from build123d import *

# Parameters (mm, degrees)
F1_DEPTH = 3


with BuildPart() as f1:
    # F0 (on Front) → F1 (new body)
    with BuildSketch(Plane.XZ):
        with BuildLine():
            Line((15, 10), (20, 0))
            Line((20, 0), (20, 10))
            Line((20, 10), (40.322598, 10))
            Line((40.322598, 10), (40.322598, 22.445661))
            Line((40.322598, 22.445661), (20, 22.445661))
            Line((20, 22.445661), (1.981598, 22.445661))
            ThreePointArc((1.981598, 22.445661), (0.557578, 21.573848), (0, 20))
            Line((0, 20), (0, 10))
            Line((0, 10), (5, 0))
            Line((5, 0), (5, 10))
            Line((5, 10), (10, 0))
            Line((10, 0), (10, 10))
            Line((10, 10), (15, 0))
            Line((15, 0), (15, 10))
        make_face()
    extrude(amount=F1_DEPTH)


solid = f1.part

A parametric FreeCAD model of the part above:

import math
import FreeCAD as App
import Part
import Sketcher

V = App.Vector
Q = App.Units.Quantity

doc = App.newDocument("Part")
body = doc.addObject("PartDesign::Body", "Body")

sketch1 = body.newObject("Sketcher::SketchObject", "Sketch")
sketch1.AttachmentSupport = (doc.getObject("XZ_Plane"), [""])
sketch1.MapMode = "FlatFace"
sketch1.addGeometry([
    Part.LineSegment(V(15, 10, 0), V(20, 0, 0)),
    Part.LineSegment(V(20, 0, 0), V(20, 10, 0)),
    Part.LineSegment(V(20, 10, 0), V(40.322598, 10, 0)),
    Part.LineSegment(V(40.322598, 10, 0), V(40.322598, 22.445661, 0)),
    Part.LineSegment(V(40.322598, 22.445661, 0), V(1.981598, 22.445661, 0)),
    Part.ArcOfCircle(Part.Circle(V(2.499999, 20.000001, 0), V(0, 0, 1), 2.499999), math.radians(101.96771), math.radians(180.000016)),
    Part.LineSegment(V(0, 20, 0), V(0, 10, 0)),
    Part.LineSegment(V(0, 10, 0), V(5, 0, 0)),
    Part.LineSegment(V(5, 0, 0), V(5, 10, 0)),
    Part.LineSegment(V(5, 10, 0), V(10, 0, 0)),
    Part.LineSegment(V(10, 0, 0), V(10, 10, 0)),
    Part.LineSegment(V(10, 10, 0), V(15, 0, 0)),
    Part.LineSegment(V(15, 0, 0), V(15, 10, 0)),
], False)
sketch1.addConstraint([
    Sketcher.Constraint("Coincident", 0, 2, 1, 1),
    Sketcher.Constraint("Coincident", 1, 2, 2, 1),
    Sketcher.Constraint("Coincident", 2, 2, 3, 1),
    Sketcher.Constraint("Coincident", 3, 2, 4, 1),
    Sketcher.Constraint("Coincident", 4, 2, 5, 1),
    Sketcher.Constraint("Tangent", 5, 2, 6, 1),
    Sketcher.Constraint("Coincident", 6, 2, 7, 1),
    Sketcher.Constraint("Coincident", 7, 2, 8, 1),
    Sketcher.Constraint("Coincident", 8, 2, 9, 1),
    Sketcher.Constraint("Coincident", 9, 2, 10, 1),
    Sketcher.Constraint("Coincident", 10, 2, 11, 1),
    Sketcher.Constraint("Coincident", 11, 2, 12, 1),
    Sketcher.Constraint("Coincident", 12, 2, 0, 1),
    Sketcher.Constraint("Vertical", 1),
    Sketcher.Constraint("Horizontal", 2),
    Sketcher.Constraint("Vertical", 3),
    Sketcher.Constraint("Horizontal", 4),
    Sketcher.Constraint("Vertical", 6),
    Sketcher.Constraint("Vertical", 8),
    Sketcher.Constraint("Vertical", 10),
    Sketcher.Constraint("Vertical", 12),
    Sketcher.Constraint("PointOnObject", 0, 2, -1),
    Sketcher.Constraint("PointOnObject", 5, 2, -2),
    Sketcher.Constraint("PointOnObject", 7, 2, -1),
    Sketcher.Constraint("PointOnObject", 9, 2, -1),
    Sketcher.Constraint("PointOnObject", 11, 2, -1),
    Sketcher.Constraint("Parallel", 0, 7),
    Sketcher.Constraint("Parallel", 7, 9),
    Sketcher.Constraint("Parallel", 9, 11),
    Sketcher.Constraint("Horizontal", 2, 2, 6, 2),
    Sketcher.Constraint("Horizontal", 6, 2, 8, 2),
    Sketcher.Constraint("Horizontal", 8, 2, 10, 2),
    Sketcher.Constraint("Horizontal", 10, 2, 12, 2),
    Sketcher.Constraint("Equal", 1, 6),
    Sketcher.Constraint("Radius", 5, Q("2.499999 mm")),
    Sketcher.Constraint("DistanceY", 1, 1, 1, 2, Q("10 mm")),
    Sketcher.Constraint("DistanceX", -1, 1, 0, 2, Q("20 mm")),
    Sketcher.Constraint("DistanceX", 4, 2, 4, 1, Q("38.341 mm")),
    Sketcher.Constraint("DistanceY", 3, 1, 3, 2, Q("12.445661 mm")),
])
pad1 = body.newObject("PartDesign::Pad", "Pad")
pad1.Profile = sketch1
pad1.Length = 3

doc.recompute()
